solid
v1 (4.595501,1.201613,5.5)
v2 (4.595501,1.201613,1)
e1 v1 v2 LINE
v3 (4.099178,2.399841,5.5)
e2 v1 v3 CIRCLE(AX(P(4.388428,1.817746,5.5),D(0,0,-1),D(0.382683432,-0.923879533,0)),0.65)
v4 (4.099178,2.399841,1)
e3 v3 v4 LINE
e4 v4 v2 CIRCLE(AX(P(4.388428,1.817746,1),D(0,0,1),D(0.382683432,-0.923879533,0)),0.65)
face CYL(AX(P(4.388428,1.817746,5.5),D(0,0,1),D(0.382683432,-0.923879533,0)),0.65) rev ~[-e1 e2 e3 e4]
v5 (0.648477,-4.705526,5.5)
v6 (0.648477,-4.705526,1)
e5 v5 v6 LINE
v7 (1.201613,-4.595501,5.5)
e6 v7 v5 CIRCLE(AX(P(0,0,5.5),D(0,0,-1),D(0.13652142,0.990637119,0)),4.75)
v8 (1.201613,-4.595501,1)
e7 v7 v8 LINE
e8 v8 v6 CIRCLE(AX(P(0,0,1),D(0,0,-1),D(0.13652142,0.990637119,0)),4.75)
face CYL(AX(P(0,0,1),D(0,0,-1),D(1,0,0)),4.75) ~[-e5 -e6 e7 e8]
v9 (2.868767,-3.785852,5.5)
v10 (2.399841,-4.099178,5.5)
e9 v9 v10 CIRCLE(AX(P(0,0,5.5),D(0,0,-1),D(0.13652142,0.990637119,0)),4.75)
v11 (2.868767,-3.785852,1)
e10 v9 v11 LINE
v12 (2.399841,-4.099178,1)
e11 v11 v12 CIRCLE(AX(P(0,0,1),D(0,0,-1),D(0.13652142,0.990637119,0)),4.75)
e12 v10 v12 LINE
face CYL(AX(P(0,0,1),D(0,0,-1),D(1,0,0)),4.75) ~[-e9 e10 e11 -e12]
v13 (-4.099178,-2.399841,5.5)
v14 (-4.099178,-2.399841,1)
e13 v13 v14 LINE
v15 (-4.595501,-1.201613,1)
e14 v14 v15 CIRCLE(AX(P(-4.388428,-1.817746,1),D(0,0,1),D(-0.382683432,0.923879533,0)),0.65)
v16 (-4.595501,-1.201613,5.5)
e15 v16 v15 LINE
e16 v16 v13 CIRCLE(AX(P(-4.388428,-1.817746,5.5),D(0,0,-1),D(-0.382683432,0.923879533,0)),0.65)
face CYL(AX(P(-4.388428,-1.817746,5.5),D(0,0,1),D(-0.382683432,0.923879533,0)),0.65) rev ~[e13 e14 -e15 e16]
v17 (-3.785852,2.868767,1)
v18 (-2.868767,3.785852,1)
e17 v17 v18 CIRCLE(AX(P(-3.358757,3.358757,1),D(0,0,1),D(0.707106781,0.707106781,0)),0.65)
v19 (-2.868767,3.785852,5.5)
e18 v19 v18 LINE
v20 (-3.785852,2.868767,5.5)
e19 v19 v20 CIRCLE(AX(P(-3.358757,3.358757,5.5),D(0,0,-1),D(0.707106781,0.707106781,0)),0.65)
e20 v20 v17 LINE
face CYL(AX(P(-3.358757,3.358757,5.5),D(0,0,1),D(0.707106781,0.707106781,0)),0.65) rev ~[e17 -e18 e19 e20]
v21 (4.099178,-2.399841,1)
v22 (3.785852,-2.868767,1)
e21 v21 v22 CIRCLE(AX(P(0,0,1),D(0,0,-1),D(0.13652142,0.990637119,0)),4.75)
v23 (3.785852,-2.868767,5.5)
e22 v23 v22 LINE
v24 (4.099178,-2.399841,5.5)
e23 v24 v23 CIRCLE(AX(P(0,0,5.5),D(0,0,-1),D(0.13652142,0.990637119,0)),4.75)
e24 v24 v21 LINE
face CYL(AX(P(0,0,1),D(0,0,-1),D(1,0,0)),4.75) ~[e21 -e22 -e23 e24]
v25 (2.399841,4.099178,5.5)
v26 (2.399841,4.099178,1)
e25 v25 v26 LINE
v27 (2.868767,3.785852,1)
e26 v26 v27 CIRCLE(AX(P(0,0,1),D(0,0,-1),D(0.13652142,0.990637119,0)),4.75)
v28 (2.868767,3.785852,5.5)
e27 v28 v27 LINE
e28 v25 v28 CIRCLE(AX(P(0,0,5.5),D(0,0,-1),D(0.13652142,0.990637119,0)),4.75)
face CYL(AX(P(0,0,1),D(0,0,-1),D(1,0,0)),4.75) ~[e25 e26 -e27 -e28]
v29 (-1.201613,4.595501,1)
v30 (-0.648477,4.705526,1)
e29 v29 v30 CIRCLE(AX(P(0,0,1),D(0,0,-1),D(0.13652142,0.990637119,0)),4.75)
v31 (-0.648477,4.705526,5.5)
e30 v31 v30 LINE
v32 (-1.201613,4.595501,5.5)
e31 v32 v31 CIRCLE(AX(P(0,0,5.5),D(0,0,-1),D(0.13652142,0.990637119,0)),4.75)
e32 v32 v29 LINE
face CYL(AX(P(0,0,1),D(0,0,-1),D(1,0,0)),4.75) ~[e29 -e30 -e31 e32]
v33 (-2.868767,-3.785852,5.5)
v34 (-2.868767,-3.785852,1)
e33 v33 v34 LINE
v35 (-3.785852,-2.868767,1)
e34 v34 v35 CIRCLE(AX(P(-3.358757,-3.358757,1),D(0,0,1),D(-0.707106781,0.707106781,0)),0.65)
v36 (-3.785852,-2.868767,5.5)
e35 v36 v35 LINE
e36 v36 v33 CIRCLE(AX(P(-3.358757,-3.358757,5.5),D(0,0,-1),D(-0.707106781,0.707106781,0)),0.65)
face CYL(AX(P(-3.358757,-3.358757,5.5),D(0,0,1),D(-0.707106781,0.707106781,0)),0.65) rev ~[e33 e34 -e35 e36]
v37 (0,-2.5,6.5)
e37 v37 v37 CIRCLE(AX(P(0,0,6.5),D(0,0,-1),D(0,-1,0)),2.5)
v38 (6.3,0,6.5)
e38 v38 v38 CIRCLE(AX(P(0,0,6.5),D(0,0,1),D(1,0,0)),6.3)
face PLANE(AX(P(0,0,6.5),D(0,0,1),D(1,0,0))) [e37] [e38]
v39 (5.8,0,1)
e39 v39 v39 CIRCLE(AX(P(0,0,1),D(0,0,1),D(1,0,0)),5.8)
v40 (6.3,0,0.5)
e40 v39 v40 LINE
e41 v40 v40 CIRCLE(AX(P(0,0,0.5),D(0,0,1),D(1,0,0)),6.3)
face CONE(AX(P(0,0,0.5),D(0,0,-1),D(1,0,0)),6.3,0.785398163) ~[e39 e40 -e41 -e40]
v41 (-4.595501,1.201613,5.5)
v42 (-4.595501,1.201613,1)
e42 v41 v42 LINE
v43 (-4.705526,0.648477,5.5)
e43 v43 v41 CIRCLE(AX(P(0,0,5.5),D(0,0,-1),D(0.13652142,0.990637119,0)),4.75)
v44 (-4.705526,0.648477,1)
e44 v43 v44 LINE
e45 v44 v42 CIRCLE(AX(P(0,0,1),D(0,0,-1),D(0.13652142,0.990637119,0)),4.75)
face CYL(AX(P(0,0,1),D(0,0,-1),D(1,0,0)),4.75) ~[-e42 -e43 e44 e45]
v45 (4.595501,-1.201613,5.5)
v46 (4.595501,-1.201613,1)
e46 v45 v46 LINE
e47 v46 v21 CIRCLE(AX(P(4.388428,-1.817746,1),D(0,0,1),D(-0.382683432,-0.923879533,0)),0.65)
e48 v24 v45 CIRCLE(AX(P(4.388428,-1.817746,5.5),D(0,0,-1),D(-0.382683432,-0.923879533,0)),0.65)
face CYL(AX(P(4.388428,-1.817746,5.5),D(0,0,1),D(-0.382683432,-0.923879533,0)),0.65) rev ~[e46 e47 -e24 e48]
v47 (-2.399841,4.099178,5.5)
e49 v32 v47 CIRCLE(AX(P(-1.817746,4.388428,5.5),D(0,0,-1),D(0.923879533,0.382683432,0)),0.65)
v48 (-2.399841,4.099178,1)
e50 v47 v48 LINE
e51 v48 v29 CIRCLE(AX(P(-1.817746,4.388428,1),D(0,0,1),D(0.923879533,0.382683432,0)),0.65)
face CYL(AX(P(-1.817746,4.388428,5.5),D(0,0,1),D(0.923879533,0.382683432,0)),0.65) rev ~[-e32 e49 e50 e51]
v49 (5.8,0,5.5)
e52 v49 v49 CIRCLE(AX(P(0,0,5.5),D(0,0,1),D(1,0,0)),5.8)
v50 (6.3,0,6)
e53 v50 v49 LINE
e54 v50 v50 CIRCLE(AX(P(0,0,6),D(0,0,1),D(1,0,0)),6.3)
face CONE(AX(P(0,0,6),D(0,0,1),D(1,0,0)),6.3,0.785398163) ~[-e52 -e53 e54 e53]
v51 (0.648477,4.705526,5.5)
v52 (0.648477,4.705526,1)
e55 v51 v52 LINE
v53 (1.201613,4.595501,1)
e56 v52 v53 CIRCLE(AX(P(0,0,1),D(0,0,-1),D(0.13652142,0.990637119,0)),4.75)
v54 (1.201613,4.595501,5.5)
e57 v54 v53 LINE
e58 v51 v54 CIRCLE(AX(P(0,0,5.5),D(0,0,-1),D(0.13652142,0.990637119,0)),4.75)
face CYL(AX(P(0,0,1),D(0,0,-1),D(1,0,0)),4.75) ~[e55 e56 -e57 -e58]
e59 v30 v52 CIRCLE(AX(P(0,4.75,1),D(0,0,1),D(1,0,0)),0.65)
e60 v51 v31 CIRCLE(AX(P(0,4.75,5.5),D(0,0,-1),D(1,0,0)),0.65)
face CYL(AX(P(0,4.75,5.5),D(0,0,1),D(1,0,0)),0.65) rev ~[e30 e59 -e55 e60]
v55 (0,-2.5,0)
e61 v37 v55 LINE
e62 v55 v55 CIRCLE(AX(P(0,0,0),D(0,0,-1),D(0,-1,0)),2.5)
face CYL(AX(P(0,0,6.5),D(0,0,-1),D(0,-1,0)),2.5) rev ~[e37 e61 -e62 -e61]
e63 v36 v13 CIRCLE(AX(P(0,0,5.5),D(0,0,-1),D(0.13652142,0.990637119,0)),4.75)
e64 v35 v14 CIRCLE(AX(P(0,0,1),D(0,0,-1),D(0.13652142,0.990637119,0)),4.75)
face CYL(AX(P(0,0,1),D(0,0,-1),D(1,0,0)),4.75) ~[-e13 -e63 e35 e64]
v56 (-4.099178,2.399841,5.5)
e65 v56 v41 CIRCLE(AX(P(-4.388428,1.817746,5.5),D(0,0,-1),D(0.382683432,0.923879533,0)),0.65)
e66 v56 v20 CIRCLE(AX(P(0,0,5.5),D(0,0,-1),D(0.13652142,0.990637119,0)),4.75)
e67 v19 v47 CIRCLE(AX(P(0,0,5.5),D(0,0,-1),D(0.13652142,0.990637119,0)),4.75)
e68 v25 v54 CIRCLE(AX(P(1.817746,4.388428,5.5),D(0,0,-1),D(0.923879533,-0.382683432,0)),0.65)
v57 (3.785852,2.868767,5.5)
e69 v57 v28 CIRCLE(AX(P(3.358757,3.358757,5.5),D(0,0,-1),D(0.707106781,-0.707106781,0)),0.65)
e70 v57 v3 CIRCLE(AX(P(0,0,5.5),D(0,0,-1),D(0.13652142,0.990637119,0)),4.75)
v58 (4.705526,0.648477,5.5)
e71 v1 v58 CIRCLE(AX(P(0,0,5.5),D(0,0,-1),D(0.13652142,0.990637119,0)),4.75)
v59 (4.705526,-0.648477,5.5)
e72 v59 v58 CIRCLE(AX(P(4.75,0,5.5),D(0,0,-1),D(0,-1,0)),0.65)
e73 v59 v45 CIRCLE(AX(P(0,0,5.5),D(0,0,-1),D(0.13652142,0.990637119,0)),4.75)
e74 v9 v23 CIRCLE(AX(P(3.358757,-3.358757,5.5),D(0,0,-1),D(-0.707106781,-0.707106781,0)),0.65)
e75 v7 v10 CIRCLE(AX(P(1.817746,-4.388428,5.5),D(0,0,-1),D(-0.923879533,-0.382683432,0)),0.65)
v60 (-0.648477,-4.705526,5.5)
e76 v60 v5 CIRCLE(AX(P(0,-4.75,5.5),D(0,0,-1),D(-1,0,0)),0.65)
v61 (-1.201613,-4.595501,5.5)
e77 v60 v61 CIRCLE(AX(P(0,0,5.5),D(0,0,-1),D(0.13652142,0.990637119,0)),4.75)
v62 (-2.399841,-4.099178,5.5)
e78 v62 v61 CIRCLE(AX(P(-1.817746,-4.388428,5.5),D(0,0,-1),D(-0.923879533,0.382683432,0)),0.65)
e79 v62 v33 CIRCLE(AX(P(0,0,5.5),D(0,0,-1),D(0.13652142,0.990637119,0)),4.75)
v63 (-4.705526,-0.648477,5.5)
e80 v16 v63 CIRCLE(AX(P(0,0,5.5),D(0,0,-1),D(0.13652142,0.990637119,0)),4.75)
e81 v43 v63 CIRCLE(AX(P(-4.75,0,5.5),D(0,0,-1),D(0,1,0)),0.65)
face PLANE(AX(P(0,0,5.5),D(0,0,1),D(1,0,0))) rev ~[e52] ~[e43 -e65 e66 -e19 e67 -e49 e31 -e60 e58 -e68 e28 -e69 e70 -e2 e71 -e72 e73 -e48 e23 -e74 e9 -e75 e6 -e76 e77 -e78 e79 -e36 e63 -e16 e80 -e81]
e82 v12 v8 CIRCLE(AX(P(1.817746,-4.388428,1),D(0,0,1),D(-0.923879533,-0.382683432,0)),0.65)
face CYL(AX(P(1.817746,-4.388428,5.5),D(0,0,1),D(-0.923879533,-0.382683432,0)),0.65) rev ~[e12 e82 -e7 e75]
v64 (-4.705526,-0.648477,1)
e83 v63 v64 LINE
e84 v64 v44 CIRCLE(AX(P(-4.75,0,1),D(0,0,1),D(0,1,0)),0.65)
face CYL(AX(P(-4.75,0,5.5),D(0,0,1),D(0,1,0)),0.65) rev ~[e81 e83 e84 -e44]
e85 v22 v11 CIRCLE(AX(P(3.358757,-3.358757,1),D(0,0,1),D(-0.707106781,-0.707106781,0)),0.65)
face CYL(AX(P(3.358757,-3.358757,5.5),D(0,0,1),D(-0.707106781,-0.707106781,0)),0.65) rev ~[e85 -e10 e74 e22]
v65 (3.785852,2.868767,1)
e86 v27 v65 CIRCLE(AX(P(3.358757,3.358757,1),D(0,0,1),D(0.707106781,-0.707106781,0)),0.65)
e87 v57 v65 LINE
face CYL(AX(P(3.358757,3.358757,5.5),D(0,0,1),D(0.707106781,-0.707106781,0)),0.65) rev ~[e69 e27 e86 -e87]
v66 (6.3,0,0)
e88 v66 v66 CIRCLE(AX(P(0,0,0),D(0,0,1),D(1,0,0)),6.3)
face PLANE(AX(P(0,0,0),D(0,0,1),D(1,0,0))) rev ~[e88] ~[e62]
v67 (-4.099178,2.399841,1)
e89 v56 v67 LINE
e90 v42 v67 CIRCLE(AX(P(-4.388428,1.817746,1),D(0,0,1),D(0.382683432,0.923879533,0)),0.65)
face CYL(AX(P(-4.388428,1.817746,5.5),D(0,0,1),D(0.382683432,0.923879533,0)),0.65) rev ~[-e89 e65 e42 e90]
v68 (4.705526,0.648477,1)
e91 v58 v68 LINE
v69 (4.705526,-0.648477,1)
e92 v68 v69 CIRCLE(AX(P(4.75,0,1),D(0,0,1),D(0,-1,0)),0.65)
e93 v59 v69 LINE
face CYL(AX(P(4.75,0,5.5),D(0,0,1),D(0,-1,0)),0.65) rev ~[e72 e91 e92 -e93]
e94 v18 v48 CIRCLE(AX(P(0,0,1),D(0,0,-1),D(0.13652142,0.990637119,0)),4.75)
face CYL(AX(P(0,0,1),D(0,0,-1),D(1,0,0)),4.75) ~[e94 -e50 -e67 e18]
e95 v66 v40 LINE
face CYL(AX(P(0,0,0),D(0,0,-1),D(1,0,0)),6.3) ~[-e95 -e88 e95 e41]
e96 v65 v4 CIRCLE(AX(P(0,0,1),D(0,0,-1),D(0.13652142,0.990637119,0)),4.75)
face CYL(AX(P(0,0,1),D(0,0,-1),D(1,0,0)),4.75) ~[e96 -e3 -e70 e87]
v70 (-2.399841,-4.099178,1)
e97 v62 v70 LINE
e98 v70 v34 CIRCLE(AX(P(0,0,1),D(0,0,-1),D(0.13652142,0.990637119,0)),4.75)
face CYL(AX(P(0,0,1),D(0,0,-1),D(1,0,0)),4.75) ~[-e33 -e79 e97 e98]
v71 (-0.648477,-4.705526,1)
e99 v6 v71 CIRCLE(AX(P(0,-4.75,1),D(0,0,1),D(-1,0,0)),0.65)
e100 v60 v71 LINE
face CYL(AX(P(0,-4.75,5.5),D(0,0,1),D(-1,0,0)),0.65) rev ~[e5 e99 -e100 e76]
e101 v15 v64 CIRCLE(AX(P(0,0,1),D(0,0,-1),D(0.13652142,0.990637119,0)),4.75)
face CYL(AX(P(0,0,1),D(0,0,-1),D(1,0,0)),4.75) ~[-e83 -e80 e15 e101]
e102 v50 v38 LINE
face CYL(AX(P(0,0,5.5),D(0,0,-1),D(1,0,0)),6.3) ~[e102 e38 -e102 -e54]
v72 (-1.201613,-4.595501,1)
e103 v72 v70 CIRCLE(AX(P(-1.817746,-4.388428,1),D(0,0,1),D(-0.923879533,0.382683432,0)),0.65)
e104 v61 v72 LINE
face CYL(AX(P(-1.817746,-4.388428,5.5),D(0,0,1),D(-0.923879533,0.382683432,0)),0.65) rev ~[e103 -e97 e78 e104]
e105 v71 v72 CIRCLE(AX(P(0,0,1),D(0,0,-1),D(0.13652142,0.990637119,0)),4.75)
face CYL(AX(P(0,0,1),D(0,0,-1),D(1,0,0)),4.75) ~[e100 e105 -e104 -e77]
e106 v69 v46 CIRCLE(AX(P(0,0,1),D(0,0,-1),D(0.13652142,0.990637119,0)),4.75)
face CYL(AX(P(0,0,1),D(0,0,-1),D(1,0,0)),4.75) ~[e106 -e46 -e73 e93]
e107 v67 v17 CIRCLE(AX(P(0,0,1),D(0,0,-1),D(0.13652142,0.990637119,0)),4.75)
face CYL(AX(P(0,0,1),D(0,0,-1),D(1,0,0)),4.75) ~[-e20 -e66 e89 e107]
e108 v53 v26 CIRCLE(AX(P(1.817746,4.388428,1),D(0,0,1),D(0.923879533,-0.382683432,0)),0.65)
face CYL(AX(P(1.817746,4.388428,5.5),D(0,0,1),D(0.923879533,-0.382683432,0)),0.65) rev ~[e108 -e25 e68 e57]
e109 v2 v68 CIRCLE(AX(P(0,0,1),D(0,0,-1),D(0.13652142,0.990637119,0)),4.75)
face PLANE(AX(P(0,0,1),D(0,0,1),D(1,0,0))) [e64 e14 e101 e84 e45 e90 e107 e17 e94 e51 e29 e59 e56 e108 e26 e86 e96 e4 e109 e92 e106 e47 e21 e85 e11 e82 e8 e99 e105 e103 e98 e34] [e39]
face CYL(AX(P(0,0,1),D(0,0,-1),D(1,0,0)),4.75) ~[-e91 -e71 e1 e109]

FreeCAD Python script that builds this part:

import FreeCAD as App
import Part
import Sketcher

V = App.Vector


def edges_at(feature, points):
    """Names of the edges that pass closest to the given points."""
    edges = feature.Shape.Edges
    near = lambda p: min(range(len(edges)), key=lambda i: edges[i].distToShape(Part.Vertex(*p))[0])
    return sorted({f"Edge{near(p) + 1}" for p in points})

doc = App.newDocument("Part")
body = doc.addObject("PartDesign::Body", "Body")

# Sketch on XY plane
sketch1 = body.newObject("Sketcher::SketchObject", "Sketch")
sketch1.AttachmentSupport = (doc.getObject("XY_Plane"), [""])
sketch1.MapMode = "FlatFace"
sketch1.addGeometry(Part.Circle(V(0, 0, 0), V(0, 0, 1), 6.3), False)
sketch1.addConstraint([
    Sketcher.Constraint("Coincident", 0, 3, -1, 1),
    Sketcher.Constraint("Diameter", 0, 12.6),
])
pad1 = body.newObject("PartDesign::Pad", "Pad")
pad1.Profile = sketch1
pad1.Length = 1

# Sketch on XY plane
sketch2 = body.newObject("Sketcher::SketchObject", "Sketch001")
sketch2.AttachmentSupport = (doc.getObject("XY_Plane"), [""])
sketch2.MapMode = "FlatFace"
sketch2.AttachmentOffset = App.Placement(V(0, 0, 1), App.Rotation())
sketch2.addGeometry(Part.Circle(V(0, 0, 0), V(0, 0, 1), 4.75), False)
sketch2.addConstraint([
    Sketcher.Constraint("Coincident", 0, 3, -1, 1),
    Sketcher.Constraint("Diameter", 0, 9.5),
])
pad2 = body.newObject("PartDesign::Pad", "Pad001")
pad2.Profile = sketch2
pad2.Length = 4.5

# Sketch on XY plane
sketch3 = body.newObject("Sketcher::SketchObject", "Sketch002")
sketch3.AttachmentSupport = (doc.getObject("XY_Plane"), [""])
sketch3.MapMode = "FlatFace"
sketch3.AttachmentOffset = App.Placement(V(0, 0, 5.5), App.Rotation())
sketch3.addGeometry(Part.Circle(V(0, 4.75, 0), V(0, 0, 1), 0.65), False)
sketch3.addConstraint([
    Sketcher.Constraint("PointOnObject", 0, 3, -2),
    Sketcher.Constraint("Diameter", 0, 1.3),
    Sketcher.Constraint("DistanceY", -1, 1, 0, 3, 4.75),
])
pocket1 = body.newObject("PartDesign::Pocket", "Pocket")
pocket1.Profile = sketch3
pocket1.Length = 4.5
doc.recompute()

polarpattern = body.newObject("PartDesign::PolarPattern", "PolarPattern")
polarpattern.Originals = [pocket1]
polarpattern.Axis = (doc.getObject("Z_Axis"), [""])
polarpattern.Angle = 360
polarpattern.Occurrences = 16
body.Tip = polarpattern

# Sketch on XY plane
sketch4 = body.newObject("Sketcher::SketchObject", "Sketch003")
sketch4.AttachmentSupport = (doc.getObject("XY_Plane"), [""])
sketch4.MapMode = "FlatFace"
sketch4.AttachmentOffset = App.Placement(V(0, 0, 5.5), App.Rotation())
sketch4.addGeometry(Part.Circle(V(0, 0, 0), V(0, 0, 1), 6.3), False)
sketch4.addConstraint([
    Sketcher.Constraint("Coincident", 0, 3, -1, 1),
    Sketcher.Constraint("Diameter", 0, 12.6),
])
pad3 = body.newObject("PartDesign::Pad", "Pad002")
pad3.Profile = sketch4
pad3.Length = 1

# Sketch on XY plane
sketch5 = body.newObject("Sketcher::SketchObject", "Sketch004")
sketch5.AttachmentSupport = (doc.getObject("XY_Plane"), [""])
sketch5.MapMode = "FlatFace"
sketch5.AttachmentOffset = App.Placement(V(0, 0, 6.5), App.Rotation())
sketch5.addGeometry(Part.Circle(V(0, 0, 0), V(0, 0, 1), 2.5), False)
sketch5.addConstraint([
    Sketcher.Constraint("Coincident", 0, 3, -1, 1),
    Sketcher.Constraint("Diameter", 0, 5.0),
])
doc.recompute()
hole = body.newObject("PartDesign::Hole", "Hole")
hole.Profile = sketch5
hole.ThreadType = "None"
hole.Diameter = 5
hole.DepthType = "ThroughAll"
doc.recompute()

chamfer = body.newObject("PartDesign::Chamfer", "Chamfer")
chamfer.Base = (hole, edges_at(hole, [(-6.3, 0, 5.5), (-6.3, 0, 1)]))
chamfer.Size = 0.5

doc.recompute()
